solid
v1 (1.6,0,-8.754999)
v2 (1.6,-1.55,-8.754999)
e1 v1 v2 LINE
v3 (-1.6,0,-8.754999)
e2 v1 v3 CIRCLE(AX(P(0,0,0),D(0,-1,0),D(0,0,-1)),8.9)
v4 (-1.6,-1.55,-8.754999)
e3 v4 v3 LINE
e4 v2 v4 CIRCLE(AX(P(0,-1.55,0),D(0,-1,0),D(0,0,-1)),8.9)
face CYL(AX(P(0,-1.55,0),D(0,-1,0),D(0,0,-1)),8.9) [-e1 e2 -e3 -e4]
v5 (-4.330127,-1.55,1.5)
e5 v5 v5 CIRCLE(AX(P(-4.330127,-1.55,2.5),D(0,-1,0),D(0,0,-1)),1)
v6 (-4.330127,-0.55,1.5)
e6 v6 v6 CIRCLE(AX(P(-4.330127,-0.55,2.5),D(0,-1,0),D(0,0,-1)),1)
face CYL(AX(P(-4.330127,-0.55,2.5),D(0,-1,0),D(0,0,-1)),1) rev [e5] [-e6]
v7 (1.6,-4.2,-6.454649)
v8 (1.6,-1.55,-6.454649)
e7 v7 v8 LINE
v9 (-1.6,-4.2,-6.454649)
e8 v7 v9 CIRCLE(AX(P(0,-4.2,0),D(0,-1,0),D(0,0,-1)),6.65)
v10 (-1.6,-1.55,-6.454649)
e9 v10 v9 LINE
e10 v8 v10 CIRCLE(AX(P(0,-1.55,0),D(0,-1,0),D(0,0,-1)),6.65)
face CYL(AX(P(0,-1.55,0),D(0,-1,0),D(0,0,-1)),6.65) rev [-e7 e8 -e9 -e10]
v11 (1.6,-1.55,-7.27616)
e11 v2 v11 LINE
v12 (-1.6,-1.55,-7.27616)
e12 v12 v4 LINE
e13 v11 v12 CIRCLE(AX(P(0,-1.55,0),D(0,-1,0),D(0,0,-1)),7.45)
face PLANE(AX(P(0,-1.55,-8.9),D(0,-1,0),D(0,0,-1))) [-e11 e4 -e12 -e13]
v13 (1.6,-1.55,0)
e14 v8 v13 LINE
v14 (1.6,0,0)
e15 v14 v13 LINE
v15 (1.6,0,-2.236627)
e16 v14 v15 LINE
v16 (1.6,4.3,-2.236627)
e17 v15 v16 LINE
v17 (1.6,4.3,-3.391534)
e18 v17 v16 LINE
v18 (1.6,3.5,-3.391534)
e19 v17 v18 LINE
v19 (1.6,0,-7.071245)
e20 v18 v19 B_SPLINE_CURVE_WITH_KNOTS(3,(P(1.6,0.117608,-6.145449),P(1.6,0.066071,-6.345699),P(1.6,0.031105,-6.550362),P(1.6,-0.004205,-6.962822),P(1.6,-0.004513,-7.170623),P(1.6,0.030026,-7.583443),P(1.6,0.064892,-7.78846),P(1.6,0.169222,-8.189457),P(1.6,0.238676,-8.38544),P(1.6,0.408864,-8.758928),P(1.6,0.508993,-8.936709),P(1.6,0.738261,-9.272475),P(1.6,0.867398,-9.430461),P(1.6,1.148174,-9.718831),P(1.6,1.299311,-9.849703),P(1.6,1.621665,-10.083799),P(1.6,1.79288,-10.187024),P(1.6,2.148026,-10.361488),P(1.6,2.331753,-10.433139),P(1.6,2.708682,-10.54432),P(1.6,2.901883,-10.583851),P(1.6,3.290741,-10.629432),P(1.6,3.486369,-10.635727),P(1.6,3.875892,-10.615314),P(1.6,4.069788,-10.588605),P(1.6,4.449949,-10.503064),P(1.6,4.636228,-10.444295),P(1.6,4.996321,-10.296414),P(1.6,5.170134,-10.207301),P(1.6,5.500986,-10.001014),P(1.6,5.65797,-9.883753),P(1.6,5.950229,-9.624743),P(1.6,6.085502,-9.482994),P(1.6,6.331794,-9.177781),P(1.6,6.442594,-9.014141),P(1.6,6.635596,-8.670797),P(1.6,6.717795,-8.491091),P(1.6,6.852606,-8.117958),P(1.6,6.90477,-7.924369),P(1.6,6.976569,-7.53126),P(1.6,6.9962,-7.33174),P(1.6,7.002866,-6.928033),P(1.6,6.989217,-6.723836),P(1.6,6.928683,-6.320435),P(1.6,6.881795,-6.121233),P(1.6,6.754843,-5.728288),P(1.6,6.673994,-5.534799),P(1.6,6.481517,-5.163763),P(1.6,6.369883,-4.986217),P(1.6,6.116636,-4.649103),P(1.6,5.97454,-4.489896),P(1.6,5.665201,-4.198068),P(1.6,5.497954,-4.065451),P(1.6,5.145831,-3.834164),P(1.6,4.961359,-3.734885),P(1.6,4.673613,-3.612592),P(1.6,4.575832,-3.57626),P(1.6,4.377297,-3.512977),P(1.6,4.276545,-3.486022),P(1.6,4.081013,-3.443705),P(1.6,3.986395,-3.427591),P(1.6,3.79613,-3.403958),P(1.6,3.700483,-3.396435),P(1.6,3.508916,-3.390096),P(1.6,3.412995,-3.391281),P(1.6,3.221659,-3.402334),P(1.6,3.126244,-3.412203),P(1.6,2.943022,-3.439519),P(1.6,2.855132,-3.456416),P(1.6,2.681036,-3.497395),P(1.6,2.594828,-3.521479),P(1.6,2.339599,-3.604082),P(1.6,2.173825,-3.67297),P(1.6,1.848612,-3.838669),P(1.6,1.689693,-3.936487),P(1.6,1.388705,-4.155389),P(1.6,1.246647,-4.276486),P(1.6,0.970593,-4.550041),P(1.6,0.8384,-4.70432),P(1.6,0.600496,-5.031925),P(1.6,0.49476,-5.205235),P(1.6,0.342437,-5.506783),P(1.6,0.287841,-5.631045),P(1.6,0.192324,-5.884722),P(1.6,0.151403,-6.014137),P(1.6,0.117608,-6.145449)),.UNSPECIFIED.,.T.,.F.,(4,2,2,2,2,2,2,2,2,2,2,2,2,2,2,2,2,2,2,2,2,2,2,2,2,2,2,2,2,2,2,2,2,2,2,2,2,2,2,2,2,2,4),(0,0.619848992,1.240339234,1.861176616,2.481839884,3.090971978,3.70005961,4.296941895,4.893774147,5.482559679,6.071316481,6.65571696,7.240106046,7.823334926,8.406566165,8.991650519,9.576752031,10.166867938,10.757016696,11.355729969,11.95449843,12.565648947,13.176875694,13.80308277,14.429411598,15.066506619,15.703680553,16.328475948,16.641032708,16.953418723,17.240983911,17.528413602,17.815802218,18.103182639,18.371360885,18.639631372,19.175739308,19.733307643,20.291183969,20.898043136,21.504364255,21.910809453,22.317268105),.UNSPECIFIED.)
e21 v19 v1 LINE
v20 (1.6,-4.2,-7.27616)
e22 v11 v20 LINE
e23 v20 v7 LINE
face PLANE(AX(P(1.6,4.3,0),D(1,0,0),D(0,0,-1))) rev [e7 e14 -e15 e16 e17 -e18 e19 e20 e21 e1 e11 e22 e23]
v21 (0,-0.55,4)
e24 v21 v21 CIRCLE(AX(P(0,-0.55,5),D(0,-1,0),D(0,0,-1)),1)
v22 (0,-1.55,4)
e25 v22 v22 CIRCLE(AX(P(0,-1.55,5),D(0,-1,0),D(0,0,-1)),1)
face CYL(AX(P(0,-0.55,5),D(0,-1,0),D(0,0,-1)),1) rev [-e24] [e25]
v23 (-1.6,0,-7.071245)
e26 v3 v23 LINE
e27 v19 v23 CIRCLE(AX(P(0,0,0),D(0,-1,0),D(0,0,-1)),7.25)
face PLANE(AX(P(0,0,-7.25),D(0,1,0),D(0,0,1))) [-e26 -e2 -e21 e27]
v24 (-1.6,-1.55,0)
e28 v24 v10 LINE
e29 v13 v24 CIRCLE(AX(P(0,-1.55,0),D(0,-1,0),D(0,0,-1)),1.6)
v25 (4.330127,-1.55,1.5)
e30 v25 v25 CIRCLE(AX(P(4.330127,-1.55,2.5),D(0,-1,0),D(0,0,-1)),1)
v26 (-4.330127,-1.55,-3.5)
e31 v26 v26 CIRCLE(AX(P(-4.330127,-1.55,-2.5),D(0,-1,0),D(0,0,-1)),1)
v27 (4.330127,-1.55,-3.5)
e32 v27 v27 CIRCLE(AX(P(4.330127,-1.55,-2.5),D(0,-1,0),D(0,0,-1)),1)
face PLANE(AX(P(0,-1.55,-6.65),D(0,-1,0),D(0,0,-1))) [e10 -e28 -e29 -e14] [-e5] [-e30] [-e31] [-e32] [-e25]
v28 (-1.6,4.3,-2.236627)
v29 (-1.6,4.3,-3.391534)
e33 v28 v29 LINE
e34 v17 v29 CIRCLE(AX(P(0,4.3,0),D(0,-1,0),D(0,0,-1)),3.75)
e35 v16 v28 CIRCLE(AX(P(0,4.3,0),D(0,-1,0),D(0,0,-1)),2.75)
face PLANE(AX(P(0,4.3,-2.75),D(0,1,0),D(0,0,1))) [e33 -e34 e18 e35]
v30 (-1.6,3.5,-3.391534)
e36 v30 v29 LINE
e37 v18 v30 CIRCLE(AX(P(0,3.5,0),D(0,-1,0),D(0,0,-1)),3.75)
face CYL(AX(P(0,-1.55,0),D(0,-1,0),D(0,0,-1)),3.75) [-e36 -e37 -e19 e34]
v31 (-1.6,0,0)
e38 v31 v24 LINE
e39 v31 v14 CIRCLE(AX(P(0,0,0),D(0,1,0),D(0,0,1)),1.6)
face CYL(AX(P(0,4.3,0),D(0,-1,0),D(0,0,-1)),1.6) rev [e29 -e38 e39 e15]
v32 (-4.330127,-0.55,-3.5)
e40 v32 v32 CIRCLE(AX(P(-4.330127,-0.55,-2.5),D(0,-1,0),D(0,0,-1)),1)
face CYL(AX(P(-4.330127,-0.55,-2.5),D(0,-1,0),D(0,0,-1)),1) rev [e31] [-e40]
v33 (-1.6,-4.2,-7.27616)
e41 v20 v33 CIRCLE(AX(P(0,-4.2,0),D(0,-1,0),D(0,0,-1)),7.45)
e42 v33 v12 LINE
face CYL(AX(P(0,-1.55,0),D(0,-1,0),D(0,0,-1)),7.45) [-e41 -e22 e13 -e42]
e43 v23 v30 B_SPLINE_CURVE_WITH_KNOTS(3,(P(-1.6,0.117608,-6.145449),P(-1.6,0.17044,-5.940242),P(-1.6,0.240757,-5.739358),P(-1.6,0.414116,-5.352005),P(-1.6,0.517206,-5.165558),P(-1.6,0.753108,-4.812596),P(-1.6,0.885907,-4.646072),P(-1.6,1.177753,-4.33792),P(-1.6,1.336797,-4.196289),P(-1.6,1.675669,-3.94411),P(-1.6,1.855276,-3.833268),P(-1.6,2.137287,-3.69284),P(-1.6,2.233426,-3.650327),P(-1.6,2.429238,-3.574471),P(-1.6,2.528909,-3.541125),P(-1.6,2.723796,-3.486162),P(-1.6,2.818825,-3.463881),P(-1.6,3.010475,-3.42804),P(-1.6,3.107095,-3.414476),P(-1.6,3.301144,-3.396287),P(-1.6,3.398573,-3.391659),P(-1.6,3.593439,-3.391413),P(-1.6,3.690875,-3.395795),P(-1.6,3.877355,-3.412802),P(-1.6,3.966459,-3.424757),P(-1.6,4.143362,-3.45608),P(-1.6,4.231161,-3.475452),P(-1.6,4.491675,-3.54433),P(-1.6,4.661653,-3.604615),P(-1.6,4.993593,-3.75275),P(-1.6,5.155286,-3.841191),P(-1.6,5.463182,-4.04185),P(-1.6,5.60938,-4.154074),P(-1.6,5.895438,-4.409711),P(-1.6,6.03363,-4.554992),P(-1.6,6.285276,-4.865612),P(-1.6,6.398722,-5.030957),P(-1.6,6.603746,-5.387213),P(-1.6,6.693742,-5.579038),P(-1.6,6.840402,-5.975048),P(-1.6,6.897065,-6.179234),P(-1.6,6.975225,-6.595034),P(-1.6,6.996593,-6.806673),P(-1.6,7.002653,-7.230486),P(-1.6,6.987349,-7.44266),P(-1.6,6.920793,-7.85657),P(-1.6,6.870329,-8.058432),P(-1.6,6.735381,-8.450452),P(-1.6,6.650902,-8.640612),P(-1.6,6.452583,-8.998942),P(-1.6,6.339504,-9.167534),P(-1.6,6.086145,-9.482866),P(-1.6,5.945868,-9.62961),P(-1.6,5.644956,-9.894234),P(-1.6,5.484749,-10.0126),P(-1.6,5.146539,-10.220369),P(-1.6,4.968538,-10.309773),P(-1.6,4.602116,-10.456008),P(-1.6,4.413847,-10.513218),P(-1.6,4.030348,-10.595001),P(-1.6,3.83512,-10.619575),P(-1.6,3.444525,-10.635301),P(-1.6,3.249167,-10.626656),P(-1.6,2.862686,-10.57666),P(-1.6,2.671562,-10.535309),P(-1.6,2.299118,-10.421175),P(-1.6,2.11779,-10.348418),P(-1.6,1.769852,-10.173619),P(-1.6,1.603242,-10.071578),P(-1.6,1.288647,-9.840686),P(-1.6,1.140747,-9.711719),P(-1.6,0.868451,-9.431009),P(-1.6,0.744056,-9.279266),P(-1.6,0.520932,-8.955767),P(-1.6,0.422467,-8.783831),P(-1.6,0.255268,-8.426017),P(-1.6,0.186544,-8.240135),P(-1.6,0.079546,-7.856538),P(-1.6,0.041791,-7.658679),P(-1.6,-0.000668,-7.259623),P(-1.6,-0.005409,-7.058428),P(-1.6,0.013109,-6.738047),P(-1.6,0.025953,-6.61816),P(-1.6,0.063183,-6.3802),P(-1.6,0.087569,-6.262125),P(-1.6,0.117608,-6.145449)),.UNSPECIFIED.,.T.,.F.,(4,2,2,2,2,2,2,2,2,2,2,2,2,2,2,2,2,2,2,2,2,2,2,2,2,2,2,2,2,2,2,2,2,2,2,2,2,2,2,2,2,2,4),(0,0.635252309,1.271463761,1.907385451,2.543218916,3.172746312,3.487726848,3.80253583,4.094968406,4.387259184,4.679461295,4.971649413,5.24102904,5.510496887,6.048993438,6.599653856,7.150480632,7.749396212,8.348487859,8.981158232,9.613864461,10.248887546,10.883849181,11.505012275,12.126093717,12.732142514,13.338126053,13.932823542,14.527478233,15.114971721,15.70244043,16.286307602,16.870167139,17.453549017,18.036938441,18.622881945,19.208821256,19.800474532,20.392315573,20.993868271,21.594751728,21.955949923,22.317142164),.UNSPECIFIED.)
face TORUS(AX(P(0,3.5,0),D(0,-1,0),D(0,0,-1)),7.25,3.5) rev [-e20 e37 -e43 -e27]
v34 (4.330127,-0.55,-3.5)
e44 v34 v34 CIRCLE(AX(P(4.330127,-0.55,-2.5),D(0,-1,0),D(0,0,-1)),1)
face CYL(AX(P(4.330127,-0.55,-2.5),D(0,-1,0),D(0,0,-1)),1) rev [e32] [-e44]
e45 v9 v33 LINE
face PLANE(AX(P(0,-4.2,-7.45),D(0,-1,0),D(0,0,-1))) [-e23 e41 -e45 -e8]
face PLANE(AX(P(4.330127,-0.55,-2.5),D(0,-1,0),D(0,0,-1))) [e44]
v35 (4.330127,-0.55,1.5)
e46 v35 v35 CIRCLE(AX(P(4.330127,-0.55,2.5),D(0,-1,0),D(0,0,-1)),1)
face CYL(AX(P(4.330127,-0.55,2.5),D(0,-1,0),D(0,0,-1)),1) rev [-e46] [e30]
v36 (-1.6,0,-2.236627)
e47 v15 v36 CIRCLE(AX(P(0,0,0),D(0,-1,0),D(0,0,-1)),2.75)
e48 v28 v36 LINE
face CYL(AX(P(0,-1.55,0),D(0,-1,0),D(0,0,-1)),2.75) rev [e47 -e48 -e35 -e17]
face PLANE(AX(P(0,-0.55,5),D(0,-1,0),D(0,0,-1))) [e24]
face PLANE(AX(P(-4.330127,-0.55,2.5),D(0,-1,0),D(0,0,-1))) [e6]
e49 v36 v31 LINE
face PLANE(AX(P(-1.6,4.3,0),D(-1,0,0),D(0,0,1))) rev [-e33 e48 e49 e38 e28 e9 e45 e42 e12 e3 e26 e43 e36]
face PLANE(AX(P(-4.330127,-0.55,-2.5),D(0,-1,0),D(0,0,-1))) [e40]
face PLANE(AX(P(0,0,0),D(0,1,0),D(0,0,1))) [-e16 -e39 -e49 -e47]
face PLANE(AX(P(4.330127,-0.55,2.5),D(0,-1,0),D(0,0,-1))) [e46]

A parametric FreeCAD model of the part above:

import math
import FreeCAD as App
import Part
import Sketcher

V = App.Vector
Q = App.Units.Quantity

doc = App.newDocument("Part")
params = doc.addObject("Spreadsheet::Sheet", "Params")
for row, (alias, value) in enumerate([
    ("sketch1_radius", "3.5 mm"),
    ("sketch1_height", "1 mm"),
    ("sketch1_width", "0.8 mm"),
    ("sketch1_width2", "1.55 mm"),
    ("sketch1_width3", "2.65 mm"),
    ("revolution_angle", "360 deg"),
    ("sketch2_radius", "1.6 mm"),
    ("sketch2_height", "8.9 mm"),
    ("sketch3_diameter", "2 mm"),
    ("pocket2_length", "1 mm"),
], start=1):
    params.set(f"A{row}", alias)
    params.set(f"B{row}", "=" + value)
    params.setAlias(f"B{row}", alias)

body = doc.addObject("PartDesign::Body", "Body")

sketch1 = body.newObject("Sketcher::SketchObject", "Sketch")
sketch1.AttachmentSupport = (doc.getObject("YZ_Plane"), [""])
sketch1.MapMode = "FlatFace"
sketch1.addGeometry([
    Part.LineSegment(V(0, -2.8, 0), V(0, 0, 0)),
    Part.LineSegment(V(0, 0, 0), V(-1.6, 0, 0)),
    Part.LineSegment(V(-1.6, 0, 0), V(-1.6, -6.7, 0)),
    Part.LineSegment(V(-1.6, -6.7, 0), V(-4.2, -6.7, 0)),
    Part.LineSegment(V(-4.2, -6.7, 0), V(-4.2, -7.5, 0)),
    Part.LineSegment(V(-4.2, -7.5, 0), V(-1.6, -7.5, 0)),
    Part.LineSegment(V(-1.6, -7.5, 0), V(-1.6, -8.9, 0)),
    Part.LineSegment(V(-1.6, -8.9, 0), V(0, -8.9, 0)),
    Part.LineSegment(V(0, -8.9, 0), V(0, -7.2, 0)),
    Part.ArcOfCircle(Part.Circle(V(3.5, -7.3, 0), V(0, 0, 1), 3.5), math.radians(90), math.radians(180)),
    Part.LineSegment(V(3.5, -3.8, 0), V(4.3, -3.8, 0)),
    Part.LineSegment(V(4.3, -3.8, 0), V(4.3, -2.8, 0)),
    Part.LineSegment(V(4.3, -2.8, 0), V(0, -2.8, 0)),
], False)
sketch1.addConstraint([
    Sketcher.Constraint("Coincident", 0, 2, 1, 1),
    Sketcher.Constraint("Coincident", 1, 2, 2, 1),
    Sketcher.Constraint("Coincident", 2, 2, 3, 1),
    Sketcher.Constraint("Coincident", 3, 2, 4, 1),
    Sketcher.Constraint("Coincident", 4, 2, 5, 1),
    Sketcher.Constraint("Coincident", 5, 2, 6, 1),
    Sketcher.Constraint("Coincident", 6, 2, 7, 1),
    Sketcher.Constraint("Coincident", 7, 2, 8, 1),
    Sketcher.Constraint("Tangent", 8, 2, 9, 2),
    Sketcher.Constraint("Tangent", 9, 1, 10, 1),
    Sketcher.Constraint("Coincident", 10, 2, 11, 1),
    Sketcher.Constraint("Coincident", 11, 2, 12, 1),
    Sketcher.Constraint("Coincident", 12, 2, 0, 1),
    Sketcher.Constraint("Vertical", 0),
    Sketcher.Constraint("Horizontal", 1),
    Sketcher.Constraint("Vertical", 2),
    Sketcher.Constraint("Horizontal", 3),
    Sketcher.Constraint("Vertical", 4),
    Sketcher.Constraint("Horizontal", 5),
    Sketcher.Constraint("Vertical", 6),
    Sketcher.Constraint("Horizontal", 7),
    Sketcher.Constraint("Vertical", 8),
    Sketcher.Constraint("Horizontal", 10),
    Sketcher.Constraint("Vertical", 11),
    Sketcher.Constraint("Horizontal", 12),
    Sketcher.Constraint("Coincident", 0, 2, -1, 1),
    Sketcher.Constraint("PointOnObject", 7, 2, -2),
    Sketcher.Constraint("Vertical", 2, 2, 5, 2),
    Sketcher.Constraint("Equal", 10, 4),
    Sketcher.Constraint("Radius", 9, Q("3.5 mm")),
    Sketcher.Constraint("DistanceY", 11, 1, 11, 2, Q("1 mm")),
    Sketcher.Constraint("DistanceX", 10, 1, 10, 2, Q("0.8 mm")),
    Sketcher.Constraint("DistanceX", 1, 2, 1, 1, Q("1.55 mm")),
    Sketcher.Constraint("DistanceX", 3, 2, 3, 1, Q("2.65 mm")),
    Sketcher.Constraint("DistanceY", 0, 1, 0, 2, Q("2.75 mm")),
    Sketcher.Constraint("DistanceY", 2, 2, 2, 1, Q("6.65 mm")),
    Sketcher.Constraint("DistanceY", 6, 2, 6, 1, Q("1.45 mm")),
])
sketch1.setExpression("Constraints[29]", "Params.sketch1_radius")
sketch1.setExpression("Constraints[30]", "Params.sketch1_height")
sketch1.setExpression("Constraints[31]", "Params.sketch1_width")
sketch1.setExpression("Constraints[32]", "Params.sketch1_width2")
sketch1.setExpression("Constraints[33]", "Params.sketch1_width3")
revolution = body.newObject("PartDesign::Revolution", "Revolution")
revolution.Profile = sketch1
revolution.ReferenceAxis = (sketch1, ["H_Axis"])
revolution.setExpression("Angle", "Params.revolution_angle")

sketch2 = body.newObject("Sketcher::SketchObject", "Sketch001")
sketch2.AttachmentSupport = (doc.getObject("XZ_Plane"), [""])
sketch2.MapMode = "FlatFace"
sketch2.AttachmentOffset = App.Placement(V(0, 0, 1.55), App.Rotation())
sketch2.addGeometry([
    Part.LineSegment(V(1.6, -8.9, 0), V(1.6, 0, 0)),
    Part.ArcOfCircle(Part.Circle(V(0, 0, 0), V(0, 0, 1), 1.6), math.radians(0), math.radians(180)),
    Part.LineSegment(V(-1.6, 0, 0), V(-1.6, -8.9, 0)),
    Part.ArcOfCircle(Part.Circle(V(0, -8.9, 0), V(0, 0, 1), 1.6), math.radians(180), math.radians(360)),
], False)
sketch2.addConstraint([
    Sketcher.Constraint("Tangent", 0, 2, 1, 1),
    Sketcher.Constraint("Tangent", 1, 2, 2, 1),
    Sketcher.Constraint("Tangent", 2, 2, 3, 1),
    Sketcher.Constraint("Tangent", 3, 2, 0, 1),
    Sketcher.Constraint("Vertical", 0),
    Sketcher.Constraint("Vertical", 2),
    Sketcher.Constraint("Coincident", 1, 3, -1, 1),
    Sketcher.Constraint("Radius", 1, Q("1.6 mm")),
    Sketcher.Constraint("DistanceY", 0, 1, 0, 2, Q("8.9 mm")),
])
sketch2.setExpression("Constraints[7]", "Params.sketch2_radius")
sketch2.setExpression("Constraints[8]", "Params.sketch2_height")
pocket1 = body.newObject("PartDesign::Pocket", "Pocket")
pocket1.Profile = sketch2
pocket1.Type = "ThroughAll"
pocket1.Midplane = True

sketch3 = body.newObject("Sketcher::SketchObject", "Sketch002")
sketch3.AttachmentSupport = (doc.getObject("XZ_Plane"), [""])
sketch3.MapMode = "FlatFace"
sketch3.AttachmentOffset = App.Placement(V(0, 0, 1.55), App.Rotation())
sketch3.addGeometry([
    Part.Circle(V(-4.3, -2.5, 0), V(0, 0, 1), 1),
    Part.Circle(V(-4.3, 2.5, 0), V(0, 0, 1), 1),
    Part.Circle(V(0, 5, 0), V(0, 0, 1), 1),
    Part.Circle(V(4.3, 2.5, 0), V(0, 0, 1), 1),
    Part.Circle(V(4.3, -2.5, 0), V(0, 0, 1), 1),
    Part.Circle(V(0, -5, 0), V(0, 0, 1), 1),
], False)
sketch3.addConstraint([
    Sketcher.Constraint("Equal", 0, 1),
    Sketcher.Constraint("Equal", 1, 2),
    Sketcher.Constraint("Equal", 2, 3),
    Sketcher.Constraint("Equal", 3, 4),
    Sketcher.Constraint("Equal", 4, 5),
    Sketcher.Constraint("Symmetric", 0, 3, 3, 3, -1, 1),
    Sketcher.Constraint("Symmetric", 1, 3, 4, 3, -1, 1),
    Sketcher.Constraint("Symmetric", 2, 3, 5, 3, -1, 1),
    Sketcher.Constraint("Symmetric", 1, 3, 3, 3, -2),
    Sketcher.Constraint("PointOnObject", 2, 3, -2),
    Sketcher.Constraint("Diameter", 0, Q("2 mm")),
    Sketcher.Constraint("DistanceY", -1, 1, 2, 3, Q("5 mm")),
    Sketcher.Constraint("DistanceY", 0, 3, 1, 3, Q("5 mm")),
    Sketcher.Constraint("DistanceX", 0, 3, -1, 1, Q("4.330127 mm")),
])
sketch3.setExpression("Constraints[10]", "Params.sketch3_diameter")
pocket2 = body.newObject("PartDesign::Pocket", "Pocket001")
pocket2.Profile = sketch3
pocket2.setExpression("Length", "Params.pocket2_length")

doc.recompute()
